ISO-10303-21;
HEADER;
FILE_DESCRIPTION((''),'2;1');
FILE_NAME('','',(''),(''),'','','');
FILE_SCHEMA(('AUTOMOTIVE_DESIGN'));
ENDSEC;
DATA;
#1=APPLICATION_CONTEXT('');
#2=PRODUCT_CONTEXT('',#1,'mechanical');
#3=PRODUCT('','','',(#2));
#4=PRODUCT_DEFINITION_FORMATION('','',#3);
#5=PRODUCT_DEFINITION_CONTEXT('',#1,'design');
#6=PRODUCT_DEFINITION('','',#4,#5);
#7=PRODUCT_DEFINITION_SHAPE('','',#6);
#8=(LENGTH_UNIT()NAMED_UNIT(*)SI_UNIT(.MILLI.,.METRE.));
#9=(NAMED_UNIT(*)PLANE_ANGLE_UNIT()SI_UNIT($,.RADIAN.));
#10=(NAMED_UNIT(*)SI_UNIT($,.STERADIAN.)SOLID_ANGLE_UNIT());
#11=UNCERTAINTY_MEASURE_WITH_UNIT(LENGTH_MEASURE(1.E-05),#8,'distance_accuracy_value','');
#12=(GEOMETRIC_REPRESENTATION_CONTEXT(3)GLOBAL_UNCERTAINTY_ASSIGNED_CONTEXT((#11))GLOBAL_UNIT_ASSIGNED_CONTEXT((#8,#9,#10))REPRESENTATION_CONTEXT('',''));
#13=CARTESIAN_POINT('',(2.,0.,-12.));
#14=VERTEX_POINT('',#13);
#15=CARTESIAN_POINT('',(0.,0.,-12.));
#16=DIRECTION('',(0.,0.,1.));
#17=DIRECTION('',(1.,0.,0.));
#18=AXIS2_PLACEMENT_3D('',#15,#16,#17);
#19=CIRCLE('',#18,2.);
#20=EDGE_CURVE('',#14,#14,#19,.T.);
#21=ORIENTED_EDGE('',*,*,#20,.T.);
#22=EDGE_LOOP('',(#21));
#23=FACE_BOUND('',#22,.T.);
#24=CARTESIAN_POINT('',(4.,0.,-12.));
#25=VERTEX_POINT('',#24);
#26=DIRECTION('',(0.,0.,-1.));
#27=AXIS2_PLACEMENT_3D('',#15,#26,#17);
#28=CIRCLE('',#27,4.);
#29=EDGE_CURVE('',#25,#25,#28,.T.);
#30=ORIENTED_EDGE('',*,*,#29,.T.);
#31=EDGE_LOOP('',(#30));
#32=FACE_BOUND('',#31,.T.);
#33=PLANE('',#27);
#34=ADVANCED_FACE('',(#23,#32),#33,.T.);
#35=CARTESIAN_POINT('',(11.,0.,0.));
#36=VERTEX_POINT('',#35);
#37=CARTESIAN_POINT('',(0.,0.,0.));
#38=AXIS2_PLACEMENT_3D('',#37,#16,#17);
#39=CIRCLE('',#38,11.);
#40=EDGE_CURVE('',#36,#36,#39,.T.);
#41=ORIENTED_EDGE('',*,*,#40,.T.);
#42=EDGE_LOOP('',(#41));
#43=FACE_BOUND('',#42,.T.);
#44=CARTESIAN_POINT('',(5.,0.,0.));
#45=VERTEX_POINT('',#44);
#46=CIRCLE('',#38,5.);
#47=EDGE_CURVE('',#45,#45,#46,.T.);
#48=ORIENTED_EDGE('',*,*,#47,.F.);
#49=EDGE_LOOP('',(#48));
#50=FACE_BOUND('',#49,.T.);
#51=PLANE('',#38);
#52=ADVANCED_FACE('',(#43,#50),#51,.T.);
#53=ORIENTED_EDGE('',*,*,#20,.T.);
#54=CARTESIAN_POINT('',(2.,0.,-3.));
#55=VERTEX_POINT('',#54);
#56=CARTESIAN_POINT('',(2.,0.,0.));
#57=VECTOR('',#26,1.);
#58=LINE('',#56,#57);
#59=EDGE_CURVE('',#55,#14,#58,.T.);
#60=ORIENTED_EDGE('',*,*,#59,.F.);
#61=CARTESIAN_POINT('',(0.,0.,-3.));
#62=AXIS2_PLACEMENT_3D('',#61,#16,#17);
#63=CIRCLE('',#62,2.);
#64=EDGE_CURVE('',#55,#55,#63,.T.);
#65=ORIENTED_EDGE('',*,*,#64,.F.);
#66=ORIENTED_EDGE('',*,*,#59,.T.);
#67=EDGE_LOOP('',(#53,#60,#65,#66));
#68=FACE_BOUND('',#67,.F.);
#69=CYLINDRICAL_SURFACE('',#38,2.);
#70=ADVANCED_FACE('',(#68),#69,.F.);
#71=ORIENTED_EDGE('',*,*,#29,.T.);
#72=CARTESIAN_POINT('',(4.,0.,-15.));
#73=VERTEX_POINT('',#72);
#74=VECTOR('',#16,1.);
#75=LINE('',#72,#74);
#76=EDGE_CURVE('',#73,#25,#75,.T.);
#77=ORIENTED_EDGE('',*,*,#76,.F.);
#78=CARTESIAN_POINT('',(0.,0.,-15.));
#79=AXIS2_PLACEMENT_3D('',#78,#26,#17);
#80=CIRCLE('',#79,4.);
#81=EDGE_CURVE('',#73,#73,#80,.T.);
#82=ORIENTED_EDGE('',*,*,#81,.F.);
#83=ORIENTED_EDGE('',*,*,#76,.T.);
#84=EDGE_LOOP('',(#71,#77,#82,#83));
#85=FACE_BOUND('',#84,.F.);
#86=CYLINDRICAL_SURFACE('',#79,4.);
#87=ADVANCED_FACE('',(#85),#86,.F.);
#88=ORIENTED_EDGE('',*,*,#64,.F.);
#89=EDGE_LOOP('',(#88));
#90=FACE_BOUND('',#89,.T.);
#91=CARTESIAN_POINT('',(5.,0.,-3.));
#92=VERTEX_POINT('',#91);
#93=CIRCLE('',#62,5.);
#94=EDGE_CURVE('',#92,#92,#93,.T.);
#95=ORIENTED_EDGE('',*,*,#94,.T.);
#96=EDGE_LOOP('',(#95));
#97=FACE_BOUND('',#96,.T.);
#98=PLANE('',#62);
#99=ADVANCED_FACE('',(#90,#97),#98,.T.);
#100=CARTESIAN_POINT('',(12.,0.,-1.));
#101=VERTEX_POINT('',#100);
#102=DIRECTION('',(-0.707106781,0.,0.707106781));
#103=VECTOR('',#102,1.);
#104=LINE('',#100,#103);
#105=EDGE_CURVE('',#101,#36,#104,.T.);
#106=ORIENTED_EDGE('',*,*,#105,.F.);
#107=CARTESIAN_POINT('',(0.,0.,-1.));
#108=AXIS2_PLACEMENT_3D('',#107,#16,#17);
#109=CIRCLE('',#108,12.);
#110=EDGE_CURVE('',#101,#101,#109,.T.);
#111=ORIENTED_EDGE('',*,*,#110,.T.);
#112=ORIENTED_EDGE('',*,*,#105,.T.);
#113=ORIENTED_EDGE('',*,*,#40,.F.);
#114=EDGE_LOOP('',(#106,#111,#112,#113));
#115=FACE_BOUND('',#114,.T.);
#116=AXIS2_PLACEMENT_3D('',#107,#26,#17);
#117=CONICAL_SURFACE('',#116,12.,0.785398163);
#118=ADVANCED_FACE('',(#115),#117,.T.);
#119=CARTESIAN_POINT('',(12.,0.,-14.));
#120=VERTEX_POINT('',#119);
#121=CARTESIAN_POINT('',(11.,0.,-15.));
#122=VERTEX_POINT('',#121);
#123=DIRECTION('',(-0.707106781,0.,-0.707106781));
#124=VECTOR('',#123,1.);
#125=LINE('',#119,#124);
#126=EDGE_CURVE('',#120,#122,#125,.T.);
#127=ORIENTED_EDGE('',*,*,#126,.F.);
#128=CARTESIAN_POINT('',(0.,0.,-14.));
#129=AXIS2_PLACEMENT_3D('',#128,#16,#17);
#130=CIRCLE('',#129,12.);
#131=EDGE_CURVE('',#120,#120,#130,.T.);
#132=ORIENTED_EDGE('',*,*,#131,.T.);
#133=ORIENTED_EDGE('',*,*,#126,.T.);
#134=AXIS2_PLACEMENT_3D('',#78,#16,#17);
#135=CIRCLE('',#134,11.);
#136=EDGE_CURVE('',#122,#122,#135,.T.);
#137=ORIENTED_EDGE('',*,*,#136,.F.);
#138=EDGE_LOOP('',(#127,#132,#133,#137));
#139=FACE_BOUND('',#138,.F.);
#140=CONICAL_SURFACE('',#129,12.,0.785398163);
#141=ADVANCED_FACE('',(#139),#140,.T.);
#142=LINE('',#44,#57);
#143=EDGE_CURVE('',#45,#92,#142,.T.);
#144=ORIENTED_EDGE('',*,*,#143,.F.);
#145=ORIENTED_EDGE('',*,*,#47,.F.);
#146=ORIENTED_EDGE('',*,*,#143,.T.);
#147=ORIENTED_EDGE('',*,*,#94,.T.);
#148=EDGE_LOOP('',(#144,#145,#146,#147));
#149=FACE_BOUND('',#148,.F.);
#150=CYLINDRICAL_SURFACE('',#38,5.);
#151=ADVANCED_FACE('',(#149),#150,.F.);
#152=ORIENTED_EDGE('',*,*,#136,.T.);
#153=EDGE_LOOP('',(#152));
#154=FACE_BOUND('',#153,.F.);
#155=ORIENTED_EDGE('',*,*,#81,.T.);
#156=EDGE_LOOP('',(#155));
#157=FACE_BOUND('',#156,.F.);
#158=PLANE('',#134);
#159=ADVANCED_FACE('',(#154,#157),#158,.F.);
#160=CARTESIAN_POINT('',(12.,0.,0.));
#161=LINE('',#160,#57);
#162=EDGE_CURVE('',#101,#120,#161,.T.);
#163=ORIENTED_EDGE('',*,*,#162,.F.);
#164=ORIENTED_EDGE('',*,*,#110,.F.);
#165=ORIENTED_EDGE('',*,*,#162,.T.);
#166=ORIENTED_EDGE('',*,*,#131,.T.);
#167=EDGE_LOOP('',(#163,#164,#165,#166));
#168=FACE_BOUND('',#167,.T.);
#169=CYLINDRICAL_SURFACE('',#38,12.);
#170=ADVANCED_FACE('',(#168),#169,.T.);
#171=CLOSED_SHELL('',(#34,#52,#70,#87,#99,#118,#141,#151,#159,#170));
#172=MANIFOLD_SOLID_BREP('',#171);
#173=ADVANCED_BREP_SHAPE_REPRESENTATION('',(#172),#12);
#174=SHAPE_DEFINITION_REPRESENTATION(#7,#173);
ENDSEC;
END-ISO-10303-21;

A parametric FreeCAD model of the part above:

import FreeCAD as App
import Part
import Sketcher

V = App.Vector
Q = App.Units.Quantity


def edges_at(feature, points):
    """Names of the edges that pass closest to the given points."""
    edges = feature.Shape.Edges
    near = lambda p: min(range(len(edges)), key=lambda i: edges[i].distToShape(Part.Vertex(*p))[0])
    return sorted({f"Edge{near(p) + 1}" for p in points})

doc = App.newDocument("Part")
body = doc.addObject("PartDesign::Body", "Body")

sketch1 = body.newObject("Sketcher::SketchObject", "Sketch")
sketch1.AttachmentSupport = (doc.getObject("XY_Plane"), [""])
sketch1.MapMode = "FlatFace"
sketch1.addGeometry(Part.Circle(V(0, 0, 0), V(0, 0, 1), 12), False)
sketch1.addGeometry(Part.Circle(V(0, 0, 0), V(0, 0, 1), 2), False)
sketch1.addConstraint(Sketcher.Constraint("Coincident", 0, 3, -1, 1))
sketch1.addConstraint(Sketcher.Constraint("Coincident", 1, 3, -1, 1))
sketch1.addConstraint(Sketcher.Constraint("Diameter", 0, Q("24 mm")))
sketch1.addConstraint(Sketcher.Constraint("Diameter", 1, Q("4 mm")))
pad1 = body.newObject("PartDesign::Pad", "Pad")
pad1.Profile = sketch1
pad1.Length = 15
pad1.Reversed = True
doc.recompute()

chamfer = body.newObject("PartDesign::Chamfer", "Chamfer")
chamfer.Base = (pad1, edges_at(pad1, [(-12, 0, -15), (-12, 0, 0)]))
chamfer.Size = 1

sketch2 = body.newObject("Sketcher::SketchObject", "Sketch001")
sketch2.AttachmentSupport = (doc.getObject("XY_Plane"), [""])
sketch2.MapMode = "FlatFace"
sketch2.addGeometry(Part.Circle(V(0, 0, 0), V(0, 0, 1), 5), False)
sketch2.addConstraint(Sketcher.Constraint("Coincident", 0, 3, -1, 1))
sketch2.addConstraint(Sketcher.Constraint("Diameter", 0, Q("10 mm")))
pocket1 = body.newObject("PartDesign::Pocket", "Pocket")
pocket1.Profile = sketch2
pocket1.Length = 3

sketch3 = body.newObject("Sketcher::SketchObject", "Sketch002")
sketch3.AttachmentSupport = (doc.getObject("XY_Plane"), [""])
sketch3.MapMode = "FlatFace"
sketch3.AttachmentOffset = App.Placement(V(0, 0, -15), App.Rotation())
sketch3.addGeometry(Part.Circle(V(0, 0, 0), V(0, 0, 1), 4), False)
sketch3.addConstraint(Sketcher.Constraint("Coincident", 0, 3, -1, 1))
sketch3.addConstraint(Sketcher.Constraint("Diameter", 0, Q("8 mm")))
pocket2 = body.newObject("PartDesign::Pocket", "Pocket001")
pocket2.Profile = sketch3
pocket2.Length = 3
pocket2.Reversed = True

doc.recompute()
